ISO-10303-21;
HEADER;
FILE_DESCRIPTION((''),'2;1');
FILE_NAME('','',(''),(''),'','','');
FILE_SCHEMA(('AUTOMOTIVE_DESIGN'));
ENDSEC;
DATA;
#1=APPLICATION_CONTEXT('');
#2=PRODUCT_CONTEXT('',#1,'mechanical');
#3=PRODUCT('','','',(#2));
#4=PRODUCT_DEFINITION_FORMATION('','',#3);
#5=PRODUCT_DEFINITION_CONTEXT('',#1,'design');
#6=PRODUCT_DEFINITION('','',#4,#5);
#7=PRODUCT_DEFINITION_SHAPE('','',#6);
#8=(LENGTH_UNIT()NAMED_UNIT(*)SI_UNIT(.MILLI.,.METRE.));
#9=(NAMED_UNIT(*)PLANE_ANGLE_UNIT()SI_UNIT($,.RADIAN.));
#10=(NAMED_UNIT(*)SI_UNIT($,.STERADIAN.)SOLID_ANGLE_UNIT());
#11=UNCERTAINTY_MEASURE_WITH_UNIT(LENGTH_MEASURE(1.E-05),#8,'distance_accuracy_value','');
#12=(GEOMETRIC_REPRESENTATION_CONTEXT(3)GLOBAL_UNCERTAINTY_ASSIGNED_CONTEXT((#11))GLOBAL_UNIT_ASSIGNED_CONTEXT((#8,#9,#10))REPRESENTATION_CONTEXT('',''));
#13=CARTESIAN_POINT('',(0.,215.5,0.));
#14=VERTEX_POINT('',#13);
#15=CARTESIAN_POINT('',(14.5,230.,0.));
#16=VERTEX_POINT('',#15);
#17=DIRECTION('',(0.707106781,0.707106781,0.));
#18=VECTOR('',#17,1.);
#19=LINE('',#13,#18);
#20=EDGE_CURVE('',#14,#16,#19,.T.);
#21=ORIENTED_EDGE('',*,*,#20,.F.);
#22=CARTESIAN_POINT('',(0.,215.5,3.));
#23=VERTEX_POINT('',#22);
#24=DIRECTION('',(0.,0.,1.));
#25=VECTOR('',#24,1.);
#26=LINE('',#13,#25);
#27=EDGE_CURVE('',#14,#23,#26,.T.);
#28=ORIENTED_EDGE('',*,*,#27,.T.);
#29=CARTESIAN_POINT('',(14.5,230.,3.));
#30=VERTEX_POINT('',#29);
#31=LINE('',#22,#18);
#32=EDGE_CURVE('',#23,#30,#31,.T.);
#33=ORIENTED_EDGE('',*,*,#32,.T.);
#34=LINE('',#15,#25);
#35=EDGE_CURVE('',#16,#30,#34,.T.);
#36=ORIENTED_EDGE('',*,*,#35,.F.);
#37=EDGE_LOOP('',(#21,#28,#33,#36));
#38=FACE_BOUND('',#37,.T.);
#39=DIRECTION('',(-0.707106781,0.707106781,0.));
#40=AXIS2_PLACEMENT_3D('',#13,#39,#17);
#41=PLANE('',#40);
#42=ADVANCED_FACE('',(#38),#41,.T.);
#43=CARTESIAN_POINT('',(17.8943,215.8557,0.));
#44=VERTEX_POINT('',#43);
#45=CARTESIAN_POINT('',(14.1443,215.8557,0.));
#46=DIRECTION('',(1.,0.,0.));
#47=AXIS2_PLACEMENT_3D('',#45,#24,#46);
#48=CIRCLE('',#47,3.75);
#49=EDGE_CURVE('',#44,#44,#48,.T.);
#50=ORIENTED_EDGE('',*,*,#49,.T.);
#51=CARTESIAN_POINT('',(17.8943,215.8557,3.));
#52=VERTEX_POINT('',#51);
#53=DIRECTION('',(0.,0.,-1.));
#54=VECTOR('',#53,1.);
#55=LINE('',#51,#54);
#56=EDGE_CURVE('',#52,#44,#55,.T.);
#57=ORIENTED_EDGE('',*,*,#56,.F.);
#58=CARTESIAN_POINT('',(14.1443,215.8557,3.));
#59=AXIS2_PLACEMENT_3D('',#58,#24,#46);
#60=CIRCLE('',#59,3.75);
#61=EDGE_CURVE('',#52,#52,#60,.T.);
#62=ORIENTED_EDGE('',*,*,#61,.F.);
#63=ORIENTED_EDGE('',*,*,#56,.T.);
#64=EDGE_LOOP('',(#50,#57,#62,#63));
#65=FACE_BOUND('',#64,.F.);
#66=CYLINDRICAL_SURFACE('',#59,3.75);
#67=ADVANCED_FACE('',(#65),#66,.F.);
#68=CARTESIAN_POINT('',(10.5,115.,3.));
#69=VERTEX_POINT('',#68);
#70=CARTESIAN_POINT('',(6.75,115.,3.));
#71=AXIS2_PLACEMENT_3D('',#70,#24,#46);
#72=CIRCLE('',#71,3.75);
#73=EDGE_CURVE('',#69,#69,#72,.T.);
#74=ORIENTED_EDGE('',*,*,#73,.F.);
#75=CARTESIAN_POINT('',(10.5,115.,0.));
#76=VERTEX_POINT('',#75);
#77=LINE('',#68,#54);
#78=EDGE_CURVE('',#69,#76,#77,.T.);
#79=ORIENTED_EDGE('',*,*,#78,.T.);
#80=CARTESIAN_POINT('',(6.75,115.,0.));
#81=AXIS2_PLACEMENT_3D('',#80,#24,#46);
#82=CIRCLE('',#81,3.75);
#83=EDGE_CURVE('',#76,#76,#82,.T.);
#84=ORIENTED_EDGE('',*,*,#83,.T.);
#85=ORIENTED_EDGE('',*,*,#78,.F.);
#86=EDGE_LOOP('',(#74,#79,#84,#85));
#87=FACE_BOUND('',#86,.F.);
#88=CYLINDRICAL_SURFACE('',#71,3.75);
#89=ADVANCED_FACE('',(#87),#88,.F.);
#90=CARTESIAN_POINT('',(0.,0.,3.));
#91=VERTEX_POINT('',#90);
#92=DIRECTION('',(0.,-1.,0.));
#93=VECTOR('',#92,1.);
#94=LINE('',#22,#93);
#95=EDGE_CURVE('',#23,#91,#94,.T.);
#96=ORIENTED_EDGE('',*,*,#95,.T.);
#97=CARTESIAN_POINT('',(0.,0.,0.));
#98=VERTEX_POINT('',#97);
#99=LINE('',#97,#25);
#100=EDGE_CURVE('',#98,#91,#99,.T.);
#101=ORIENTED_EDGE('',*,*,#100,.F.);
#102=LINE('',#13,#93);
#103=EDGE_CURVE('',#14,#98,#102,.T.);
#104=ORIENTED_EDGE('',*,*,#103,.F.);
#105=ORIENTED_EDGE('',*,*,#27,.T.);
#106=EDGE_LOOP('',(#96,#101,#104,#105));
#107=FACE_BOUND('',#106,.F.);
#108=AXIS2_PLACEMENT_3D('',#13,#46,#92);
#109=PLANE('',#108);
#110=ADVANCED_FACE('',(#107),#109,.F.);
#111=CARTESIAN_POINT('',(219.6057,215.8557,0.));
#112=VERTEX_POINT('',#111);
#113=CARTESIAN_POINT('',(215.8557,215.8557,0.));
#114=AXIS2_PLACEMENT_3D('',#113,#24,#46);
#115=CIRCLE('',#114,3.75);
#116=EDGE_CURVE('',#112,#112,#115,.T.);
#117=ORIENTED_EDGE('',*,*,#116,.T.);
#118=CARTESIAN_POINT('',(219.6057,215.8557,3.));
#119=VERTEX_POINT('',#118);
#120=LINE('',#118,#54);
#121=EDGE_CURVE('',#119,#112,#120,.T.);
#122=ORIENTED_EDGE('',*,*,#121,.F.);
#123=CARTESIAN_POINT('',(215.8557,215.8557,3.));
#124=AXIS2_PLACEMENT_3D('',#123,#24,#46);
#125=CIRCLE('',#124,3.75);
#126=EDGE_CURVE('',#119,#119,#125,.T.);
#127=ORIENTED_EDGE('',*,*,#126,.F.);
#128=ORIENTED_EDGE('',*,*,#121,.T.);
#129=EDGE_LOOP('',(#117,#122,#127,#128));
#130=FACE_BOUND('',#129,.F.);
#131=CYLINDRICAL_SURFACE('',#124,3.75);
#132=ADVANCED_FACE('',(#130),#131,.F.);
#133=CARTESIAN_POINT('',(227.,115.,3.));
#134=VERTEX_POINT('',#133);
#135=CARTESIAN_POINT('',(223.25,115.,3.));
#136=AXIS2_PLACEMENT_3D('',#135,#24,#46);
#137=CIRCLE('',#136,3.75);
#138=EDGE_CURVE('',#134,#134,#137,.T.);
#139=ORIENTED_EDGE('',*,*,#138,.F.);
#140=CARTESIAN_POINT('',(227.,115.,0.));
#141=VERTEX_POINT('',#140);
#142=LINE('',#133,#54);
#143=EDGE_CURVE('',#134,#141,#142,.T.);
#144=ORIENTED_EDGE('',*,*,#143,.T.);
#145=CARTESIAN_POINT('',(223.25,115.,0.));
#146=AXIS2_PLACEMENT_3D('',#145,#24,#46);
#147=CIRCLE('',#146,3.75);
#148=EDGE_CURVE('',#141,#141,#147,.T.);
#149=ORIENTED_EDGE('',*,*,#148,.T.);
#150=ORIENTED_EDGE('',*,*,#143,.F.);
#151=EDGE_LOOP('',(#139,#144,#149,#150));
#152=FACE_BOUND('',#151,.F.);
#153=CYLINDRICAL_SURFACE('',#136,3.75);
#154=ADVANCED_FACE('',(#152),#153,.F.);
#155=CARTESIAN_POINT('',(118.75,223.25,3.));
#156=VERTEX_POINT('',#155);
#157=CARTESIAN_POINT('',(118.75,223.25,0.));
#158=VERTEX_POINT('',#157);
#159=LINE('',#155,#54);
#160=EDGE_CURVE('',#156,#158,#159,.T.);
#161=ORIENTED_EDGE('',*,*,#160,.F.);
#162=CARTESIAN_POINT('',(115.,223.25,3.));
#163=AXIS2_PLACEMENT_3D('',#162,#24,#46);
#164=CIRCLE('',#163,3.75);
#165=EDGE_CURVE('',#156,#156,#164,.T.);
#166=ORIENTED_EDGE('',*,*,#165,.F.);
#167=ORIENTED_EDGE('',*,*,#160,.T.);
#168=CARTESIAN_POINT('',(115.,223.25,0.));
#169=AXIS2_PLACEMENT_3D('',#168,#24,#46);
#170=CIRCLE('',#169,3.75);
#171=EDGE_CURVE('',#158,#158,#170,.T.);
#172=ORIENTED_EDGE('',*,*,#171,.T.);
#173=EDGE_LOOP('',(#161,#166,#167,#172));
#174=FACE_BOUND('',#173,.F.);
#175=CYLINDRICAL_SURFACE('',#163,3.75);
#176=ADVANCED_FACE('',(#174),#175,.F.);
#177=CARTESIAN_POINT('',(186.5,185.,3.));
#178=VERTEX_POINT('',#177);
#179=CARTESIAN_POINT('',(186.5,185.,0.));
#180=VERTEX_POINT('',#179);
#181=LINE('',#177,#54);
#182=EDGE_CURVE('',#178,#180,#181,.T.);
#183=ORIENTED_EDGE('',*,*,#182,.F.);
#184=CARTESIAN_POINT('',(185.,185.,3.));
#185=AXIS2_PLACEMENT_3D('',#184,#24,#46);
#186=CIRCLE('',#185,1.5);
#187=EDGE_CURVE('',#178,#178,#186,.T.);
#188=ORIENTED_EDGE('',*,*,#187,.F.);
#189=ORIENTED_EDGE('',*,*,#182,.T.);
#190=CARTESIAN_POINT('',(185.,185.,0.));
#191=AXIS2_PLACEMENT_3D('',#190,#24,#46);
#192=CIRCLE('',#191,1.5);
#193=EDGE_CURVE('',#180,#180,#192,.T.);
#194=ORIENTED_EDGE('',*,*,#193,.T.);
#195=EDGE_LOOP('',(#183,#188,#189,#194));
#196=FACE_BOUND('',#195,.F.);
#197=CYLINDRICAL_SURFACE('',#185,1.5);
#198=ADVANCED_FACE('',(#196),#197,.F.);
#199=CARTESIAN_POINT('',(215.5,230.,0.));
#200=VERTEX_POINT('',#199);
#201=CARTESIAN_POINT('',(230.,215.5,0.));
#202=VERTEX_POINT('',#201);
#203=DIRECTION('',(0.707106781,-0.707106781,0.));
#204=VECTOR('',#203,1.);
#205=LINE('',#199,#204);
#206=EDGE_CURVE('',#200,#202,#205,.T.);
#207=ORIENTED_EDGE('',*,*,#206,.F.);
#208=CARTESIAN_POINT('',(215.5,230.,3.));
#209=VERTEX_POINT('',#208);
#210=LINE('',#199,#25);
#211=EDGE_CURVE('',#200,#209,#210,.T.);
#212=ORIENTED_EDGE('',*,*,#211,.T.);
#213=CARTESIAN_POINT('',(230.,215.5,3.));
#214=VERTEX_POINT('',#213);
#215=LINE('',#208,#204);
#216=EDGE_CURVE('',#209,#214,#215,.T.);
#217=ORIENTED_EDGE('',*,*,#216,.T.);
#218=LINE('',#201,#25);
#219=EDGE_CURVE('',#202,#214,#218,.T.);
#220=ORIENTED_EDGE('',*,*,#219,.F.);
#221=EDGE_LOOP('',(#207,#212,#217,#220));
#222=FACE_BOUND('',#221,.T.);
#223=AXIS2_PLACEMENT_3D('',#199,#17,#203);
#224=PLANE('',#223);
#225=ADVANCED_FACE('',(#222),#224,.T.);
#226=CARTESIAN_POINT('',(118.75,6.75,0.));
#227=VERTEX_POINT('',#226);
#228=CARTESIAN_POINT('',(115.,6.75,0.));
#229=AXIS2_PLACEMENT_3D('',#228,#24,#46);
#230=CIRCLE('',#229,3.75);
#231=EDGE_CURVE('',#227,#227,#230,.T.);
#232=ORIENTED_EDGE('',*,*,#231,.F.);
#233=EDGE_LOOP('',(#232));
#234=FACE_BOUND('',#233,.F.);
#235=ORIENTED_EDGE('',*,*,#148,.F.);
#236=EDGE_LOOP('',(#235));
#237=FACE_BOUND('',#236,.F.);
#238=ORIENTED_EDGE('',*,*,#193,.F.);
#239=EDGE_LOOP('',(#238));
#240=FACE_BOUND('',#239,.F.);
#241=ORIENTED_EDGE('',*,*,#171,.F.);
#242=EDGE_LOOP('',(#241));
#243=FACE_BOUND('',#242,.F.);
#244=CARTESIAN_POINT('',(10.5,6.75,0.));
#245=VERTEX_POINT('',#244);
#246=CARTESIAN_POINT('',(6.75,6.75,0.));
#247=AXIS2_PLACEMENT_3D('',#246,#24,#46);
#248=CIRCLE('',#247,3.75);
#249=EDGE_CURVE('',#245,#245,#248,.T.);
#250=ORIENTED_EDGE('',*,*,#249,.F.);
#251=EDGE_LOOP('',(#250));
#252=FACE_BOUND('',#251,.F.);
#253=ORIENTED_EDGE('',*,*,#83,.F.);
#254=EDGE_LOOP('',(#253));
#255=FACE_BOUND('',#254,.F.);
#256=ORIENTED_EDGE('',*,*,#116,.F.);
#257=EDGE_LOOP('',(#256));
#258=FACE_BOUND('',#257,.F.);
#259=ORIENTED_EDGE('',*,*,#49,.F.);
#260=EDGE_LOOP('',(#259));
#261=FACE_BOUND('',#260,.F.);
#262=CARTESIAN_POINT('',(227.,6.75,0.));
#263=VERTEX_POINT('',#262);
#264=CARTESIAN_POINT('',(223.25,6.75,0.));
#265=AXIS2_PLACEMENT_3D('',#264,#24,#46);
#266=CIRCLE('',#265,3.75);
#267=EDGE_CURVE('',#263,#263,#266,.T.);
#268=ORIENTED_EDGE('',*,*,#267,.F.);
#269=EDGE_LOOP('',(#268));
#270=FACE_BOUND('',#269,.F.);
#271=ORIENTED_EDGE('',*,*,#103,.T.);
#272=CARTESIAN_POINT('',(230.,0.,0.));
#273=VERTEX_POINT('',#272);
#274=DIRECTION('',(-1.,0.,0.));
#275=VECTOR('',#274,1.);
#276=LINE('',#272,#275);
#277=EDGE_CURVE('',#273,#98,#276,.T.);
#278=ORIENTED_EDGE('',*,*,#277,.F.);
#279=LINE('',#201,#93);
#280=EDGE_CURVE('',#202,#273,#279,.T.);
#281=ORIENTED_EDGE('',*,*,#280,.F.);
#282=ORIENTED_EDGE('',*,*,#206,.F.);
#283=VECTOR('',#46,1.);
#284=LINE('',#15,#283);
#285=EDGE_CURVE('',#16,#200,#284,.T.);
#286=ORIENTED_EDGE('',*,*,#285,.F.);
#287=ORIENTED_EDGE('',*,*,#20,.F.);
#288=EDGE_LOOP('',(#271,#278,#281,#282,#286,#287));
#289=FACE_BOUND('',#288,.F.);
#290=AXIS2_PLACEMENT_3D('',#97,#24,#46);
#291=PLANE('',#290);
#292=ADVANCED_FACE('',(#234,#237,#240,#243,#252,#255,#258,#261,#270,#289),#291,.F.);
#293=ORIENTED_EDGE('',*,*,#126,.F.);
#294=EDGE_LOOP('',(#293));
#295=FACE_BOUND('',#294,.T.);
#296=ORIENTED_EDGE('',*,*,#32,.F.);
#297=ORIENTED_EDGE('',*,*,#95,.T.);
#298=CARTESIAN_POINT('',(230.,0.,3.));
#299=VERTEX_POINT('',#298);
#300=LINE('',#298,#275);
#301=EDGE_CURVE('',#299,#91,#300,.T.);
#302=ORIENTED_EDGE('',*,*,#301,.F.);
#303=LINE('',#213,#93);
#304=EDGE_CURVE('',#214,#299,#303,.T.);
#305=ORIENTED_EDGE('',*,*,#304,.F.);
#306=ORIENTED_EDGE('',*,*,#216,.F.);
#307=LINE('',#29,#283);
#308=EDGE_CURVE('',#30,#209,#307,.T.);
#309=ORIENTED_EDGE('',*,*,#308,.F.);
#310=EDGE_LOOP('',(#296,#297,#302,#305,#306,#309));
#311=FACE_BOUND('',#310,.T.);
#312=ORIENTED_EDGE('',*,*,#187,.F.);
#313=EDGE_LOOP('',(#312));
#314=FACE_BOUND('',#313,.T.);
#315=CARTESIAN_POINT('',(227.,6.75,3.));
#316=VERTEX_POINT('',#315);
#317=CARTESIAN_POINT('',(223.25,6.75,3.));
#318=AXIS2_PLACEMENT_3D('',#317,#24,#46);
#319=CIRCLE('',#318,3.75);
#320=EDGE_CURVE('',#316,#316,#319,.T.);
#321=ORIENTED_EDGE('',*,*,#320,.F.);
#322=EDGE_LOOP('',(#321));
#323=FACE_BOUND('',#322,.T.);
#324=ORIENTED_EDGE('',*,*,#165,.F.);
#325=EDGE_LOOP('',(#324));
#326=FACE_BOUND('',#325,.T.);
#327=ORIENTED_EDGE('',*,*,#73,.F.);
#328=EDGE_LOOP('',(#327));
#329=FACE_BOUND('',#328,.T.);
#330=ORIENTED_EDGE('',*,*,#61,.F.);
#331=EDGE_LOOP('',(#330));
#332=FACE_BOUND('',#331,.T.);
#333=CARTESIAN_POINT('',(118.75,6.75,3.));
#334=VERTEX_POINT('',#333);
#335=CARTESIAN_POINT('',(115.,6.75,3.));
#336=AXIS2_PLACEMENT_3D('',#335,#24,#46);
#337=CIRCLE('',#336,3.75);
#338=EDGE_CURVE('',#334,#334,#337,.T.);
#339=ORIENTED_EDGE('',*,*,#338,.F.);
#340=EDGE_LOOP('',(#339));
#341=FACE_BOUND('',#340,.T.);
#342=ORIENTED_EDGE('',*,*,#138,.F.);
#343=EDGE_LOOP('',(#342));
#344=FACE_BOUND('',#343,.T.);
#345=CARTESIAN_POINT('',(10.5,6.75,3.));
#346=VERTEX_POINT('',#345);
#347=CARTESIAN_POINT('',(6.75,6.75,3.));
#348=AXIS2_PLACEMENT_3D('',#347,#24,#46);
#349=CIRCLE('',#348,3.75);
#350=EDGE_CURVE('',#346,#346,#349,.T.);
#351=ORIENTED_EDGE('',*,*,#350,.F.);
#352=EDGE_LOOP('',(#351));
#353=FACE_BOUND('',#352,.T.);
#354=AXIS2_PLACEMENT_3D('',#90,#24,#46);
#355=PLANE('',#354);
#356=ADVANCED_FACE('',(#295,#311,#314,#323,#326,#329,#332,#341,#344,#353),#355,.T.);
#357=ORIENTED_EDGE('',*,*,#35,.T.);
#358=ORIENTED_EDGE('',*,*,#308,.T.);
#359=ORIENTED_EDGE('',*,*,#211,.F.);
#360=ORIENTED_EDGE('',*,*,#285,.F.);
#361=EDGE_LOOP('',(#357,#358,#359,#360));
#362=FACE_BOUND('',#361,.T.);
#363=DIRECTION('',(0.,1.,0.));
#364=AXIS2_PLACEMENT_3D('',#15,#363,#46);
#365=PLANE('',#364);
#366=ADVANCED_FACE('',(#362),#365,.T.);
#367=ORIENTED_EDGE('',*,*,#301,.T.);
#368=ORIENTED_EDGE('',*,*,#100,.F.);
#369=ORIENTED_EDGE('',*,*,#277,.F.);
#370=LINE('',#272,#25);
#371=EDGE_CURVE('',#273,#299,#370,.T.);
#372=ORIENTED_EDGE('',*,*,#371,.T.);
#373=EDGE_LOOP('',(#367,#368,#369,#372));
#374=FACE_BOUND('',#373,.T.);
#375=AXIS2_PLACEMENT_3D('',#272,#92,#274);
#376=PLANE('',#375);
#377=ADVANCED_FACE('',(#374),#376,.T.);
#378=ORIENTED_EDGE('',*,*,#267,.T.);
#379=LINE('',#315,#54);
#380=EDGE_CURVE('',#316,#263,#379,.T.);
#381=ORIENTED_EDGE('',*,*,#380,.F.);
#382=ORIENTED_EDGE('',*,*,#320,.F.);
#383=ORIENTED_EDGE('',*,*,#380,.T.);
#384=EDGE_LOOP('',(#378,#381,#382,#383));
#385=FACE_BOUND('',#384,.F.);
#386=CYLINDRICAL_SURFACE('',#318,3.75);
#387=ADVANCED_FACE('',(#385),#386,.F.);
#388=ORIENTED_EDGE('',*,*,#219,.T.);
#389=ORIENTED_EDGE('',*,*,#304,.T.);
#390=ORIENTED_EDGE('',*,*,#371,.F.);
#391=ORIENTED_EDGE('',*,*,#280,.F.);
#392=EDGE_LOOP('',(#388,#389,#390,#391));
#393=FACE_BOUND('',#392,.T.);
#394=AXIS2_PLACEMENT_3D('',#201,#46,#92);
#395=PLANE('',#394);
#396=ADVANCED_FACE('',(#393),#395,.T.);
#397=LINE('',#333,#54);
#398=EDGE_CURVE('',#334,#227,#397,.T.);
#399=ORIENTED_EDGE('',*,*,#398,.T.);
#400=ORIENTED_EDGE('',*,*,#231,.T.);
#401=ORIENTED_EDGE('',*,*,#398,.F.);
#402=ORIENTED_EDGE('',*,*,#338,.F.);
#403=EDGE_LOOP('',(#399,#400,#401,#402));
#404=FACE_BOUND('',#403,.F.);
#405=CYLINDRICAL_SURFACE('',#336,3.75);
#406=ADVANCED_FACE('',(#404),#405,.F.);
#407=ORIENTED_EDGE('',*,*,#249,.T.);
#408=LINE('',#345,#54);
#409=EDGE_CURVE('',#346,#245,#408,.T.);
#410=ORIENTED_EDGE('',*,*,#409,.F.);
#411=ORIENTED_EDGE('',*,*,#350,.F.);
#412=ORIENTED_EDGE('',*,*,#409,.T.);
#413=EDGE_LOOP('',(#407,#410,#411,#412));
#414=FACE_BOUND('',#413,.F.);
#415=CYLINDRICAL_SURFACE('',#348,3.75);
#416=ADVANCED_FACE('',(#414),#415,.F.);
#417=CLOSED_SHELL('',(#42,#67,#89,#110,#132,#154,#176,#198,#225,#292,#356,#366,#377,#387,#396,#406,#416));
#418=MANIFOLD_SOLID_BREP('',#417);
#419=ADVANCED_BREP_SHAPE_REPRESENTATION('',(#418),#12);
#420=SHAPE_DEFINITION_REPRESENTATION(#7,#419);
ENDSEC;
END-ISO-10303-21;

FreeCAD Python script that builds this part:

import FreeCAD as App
import Part
import Sketcher
Q = App.Units.Quantity


def add_polygon(sketch, points):
    """Adds a closed chain of lines whose ends are joined by coincident constraints."""
    first, n = sketch.GeometryCount, len(points)
    for a, b in zip(points, points[1:] + points[:1]):
        sketch.addGeometry(Part.LineSegment(App.Vector(*a, 0), App.Vector(*b, 0)), False)
    for i in range(n):
        sketch.addConstraint(Sketcher.Constraint("Coincident", first + i, 2, first + (i + 1) % n, 1))

doc = App.newDocument("Part")
body = doc.addObject("PartDesign::Body", "Body")

# Sketch on XY plane
sketch1 = body.newObject("Sketcher::SketchObject", "Sketch")
sketch1.AttachmentSupport = (doc.getObject("XY_Plane"), [""])
sketch1.MapMode = "FlatFace"
add_polygon(sketch1, [(0, 0), (230, 0), (230, 215.5), (215.5, 230), (14.5, 230), (0, 215.5)])  # lines 0-5
sketch1.addConstraint([
    Sketcher.Constraint("Horizontal", 0),
    Sketcher.Constraint("Vertical", 1),
    Sketcher.Constraint("Horizontal", 3),
    Sketcher.Constraint("Vertical", 5),
    Sketcher.Constraint("Coincident", 5, 2, -1, 1),
    Sketcher.Constraint("Perpendicular", 2, 4),
    Sketcher.Constraint("Horizontal", 1, 2, 4, 2),
    Sketcher.Constraint("Equal", 2, 4),
    Sketcher.Constraint("DistanceX", 0, 1, 0, 2, Q("230 mm")),
    Sketcher.Constraint("DistanceY", -1, 1, 2, 2, Q("230 mm")),
    Sketcher.Constraint("DistanceX", 3, 2, 3, 1, Q("201 mm")),
])
pad1 = body.newObject("PartDesign::Pad", "Pad")
pad1.Profile = sketch1
pad1.Length = 3

# Sketch on XY plane
sketch2 = body.newObject("Sketcher::SketchObject", "Sketch001")
sketch2.AttachmentSupport = (doc.getObject("XY_Plane"), [""])
sketch2.MapMode = "FlatFace"
sketch2.AttachmentOffset = App.Placement(App.Vector(0, 0, 3), App.Rotation())
sketch2.addGeometry([
    Part.Circle(App.Vector(115, 223.25, 0), App.Vector(0, 0, 1), 3.75),  # 0
    Part.Circle(App.Vector(115, 6.75, 0), App.Vector(0, 0, 1), 3.75),  # 1
    Part.Circle(App.Vector(6.75, 115, 0), App.Vector(0, 0, 1), 3.75),  # 2
    Part.Circle(App.Vector(223.25, 115, 0), App.Vector(0, 0, 1), 3.75),  # 3
    Part.Circle(App.Vector(6.75, 6.75, 0), App.Vector(0, 0, 1), 3.75),  # 4
    Part.Circle(App.Vector(223.25, 6.75, 0), App.Vector(0, 0, 1), 3.75),  # 5
    Part.Circle(App.Vector(14.1443, 215.8557, 0), App.Vector(0, 0, 1), 3.75),  # 6
    Part.Circle(App.Vector(215.8557, 215.8557, 0), App.Vector(0, 0, 1), 3.75),  # 7
    Part.Circle(App.Vector(185, 185, 0), App.Vector(0, 0, 1), 1.5),  # 8
], False)
sketch2.addConstraint([
    Sketcher.Constraint("Equal", 0, 1),
    Sketcher.Constraint("Equal", 1, 2),
    Sketcher.Constraint("Equal", 2, 3),
    Sketcher.Constraint("Equal", 3, 4),
    Sketcher.Constraint("Equal", 4, 5),
    Sketcher.Constraint("Equal", 5, 6),
    Sketcher.Constraint("Equal", 6, 7),
    Sketcher.Constraint("Horizontal", 2, 3, 3, 3),
    Sketcher.Constraint("Horizontal", 1, 3, 4, 3),
    Sketcher.Constraint("Horizontal", 4, 3, 5, 3),
    Sketcher.Constraint("Horizontal", 6, 3, 7, 3),
    Sketcher.Constraint("Vertical", 0, 3, 1, 3),
    Sketcher.Constraint("Vertical", 2, 3, 4, 3),
    Sketcher.Constraint("Vertical", 3, 3, 5, 3),
    Sketcher.Constraint("Diameter", 8, Q("3 mm")),
    Sketcher.Constraint("Diameter", 0, Q("7.5 mm")),
    Sketcher.Constraint("DistanceX", -1, 1, 0, 3, Q("115 mm")),
    Sketcher.Constraint("DistanceY", -1, 1, 2, 3, Q("115 mm")),
    Sketcher.Constraint("DistanceX", -1, 1, 8, 3, Q("185 mm")),
    Sketcher.Constraint("DistanceY", -1, 1, 8, 3, Q("185 mm")),
    Sketcher.Constraint("DistanceY", 1, 3, 0, 3, Q("216.5 mm")),
    Sketcher.Constraint("DistanceX", 2, 3, 3, 3, Q("216.5 mm")),
    Sketcher.Constraint("DistanceY", -1, 1, 0, 3, Q("223.25 mm")),
    Sketcher.Constraint("DistanceX", -1, 1, 2, 3, Q("6.75 mm")),
    Sketcher.Constraint("DistanceX", -1, 1, 6, 3, Q("14.1443 mm")),
    Sketcher.Constraint("DistanceY", -1, 1, 6, 3, Q("215.8557 mm")),
    Sketcher.Constraint("DistanceX", -1, 1, 7, 3, Q("215.8557 mm")),
])
pocket1 = body.newObject("PartDesign::Pocket", "Pocket")
pocket1.Profile = sketch2
pocket1.Type = "ThroughAll"

doc.recompute()
